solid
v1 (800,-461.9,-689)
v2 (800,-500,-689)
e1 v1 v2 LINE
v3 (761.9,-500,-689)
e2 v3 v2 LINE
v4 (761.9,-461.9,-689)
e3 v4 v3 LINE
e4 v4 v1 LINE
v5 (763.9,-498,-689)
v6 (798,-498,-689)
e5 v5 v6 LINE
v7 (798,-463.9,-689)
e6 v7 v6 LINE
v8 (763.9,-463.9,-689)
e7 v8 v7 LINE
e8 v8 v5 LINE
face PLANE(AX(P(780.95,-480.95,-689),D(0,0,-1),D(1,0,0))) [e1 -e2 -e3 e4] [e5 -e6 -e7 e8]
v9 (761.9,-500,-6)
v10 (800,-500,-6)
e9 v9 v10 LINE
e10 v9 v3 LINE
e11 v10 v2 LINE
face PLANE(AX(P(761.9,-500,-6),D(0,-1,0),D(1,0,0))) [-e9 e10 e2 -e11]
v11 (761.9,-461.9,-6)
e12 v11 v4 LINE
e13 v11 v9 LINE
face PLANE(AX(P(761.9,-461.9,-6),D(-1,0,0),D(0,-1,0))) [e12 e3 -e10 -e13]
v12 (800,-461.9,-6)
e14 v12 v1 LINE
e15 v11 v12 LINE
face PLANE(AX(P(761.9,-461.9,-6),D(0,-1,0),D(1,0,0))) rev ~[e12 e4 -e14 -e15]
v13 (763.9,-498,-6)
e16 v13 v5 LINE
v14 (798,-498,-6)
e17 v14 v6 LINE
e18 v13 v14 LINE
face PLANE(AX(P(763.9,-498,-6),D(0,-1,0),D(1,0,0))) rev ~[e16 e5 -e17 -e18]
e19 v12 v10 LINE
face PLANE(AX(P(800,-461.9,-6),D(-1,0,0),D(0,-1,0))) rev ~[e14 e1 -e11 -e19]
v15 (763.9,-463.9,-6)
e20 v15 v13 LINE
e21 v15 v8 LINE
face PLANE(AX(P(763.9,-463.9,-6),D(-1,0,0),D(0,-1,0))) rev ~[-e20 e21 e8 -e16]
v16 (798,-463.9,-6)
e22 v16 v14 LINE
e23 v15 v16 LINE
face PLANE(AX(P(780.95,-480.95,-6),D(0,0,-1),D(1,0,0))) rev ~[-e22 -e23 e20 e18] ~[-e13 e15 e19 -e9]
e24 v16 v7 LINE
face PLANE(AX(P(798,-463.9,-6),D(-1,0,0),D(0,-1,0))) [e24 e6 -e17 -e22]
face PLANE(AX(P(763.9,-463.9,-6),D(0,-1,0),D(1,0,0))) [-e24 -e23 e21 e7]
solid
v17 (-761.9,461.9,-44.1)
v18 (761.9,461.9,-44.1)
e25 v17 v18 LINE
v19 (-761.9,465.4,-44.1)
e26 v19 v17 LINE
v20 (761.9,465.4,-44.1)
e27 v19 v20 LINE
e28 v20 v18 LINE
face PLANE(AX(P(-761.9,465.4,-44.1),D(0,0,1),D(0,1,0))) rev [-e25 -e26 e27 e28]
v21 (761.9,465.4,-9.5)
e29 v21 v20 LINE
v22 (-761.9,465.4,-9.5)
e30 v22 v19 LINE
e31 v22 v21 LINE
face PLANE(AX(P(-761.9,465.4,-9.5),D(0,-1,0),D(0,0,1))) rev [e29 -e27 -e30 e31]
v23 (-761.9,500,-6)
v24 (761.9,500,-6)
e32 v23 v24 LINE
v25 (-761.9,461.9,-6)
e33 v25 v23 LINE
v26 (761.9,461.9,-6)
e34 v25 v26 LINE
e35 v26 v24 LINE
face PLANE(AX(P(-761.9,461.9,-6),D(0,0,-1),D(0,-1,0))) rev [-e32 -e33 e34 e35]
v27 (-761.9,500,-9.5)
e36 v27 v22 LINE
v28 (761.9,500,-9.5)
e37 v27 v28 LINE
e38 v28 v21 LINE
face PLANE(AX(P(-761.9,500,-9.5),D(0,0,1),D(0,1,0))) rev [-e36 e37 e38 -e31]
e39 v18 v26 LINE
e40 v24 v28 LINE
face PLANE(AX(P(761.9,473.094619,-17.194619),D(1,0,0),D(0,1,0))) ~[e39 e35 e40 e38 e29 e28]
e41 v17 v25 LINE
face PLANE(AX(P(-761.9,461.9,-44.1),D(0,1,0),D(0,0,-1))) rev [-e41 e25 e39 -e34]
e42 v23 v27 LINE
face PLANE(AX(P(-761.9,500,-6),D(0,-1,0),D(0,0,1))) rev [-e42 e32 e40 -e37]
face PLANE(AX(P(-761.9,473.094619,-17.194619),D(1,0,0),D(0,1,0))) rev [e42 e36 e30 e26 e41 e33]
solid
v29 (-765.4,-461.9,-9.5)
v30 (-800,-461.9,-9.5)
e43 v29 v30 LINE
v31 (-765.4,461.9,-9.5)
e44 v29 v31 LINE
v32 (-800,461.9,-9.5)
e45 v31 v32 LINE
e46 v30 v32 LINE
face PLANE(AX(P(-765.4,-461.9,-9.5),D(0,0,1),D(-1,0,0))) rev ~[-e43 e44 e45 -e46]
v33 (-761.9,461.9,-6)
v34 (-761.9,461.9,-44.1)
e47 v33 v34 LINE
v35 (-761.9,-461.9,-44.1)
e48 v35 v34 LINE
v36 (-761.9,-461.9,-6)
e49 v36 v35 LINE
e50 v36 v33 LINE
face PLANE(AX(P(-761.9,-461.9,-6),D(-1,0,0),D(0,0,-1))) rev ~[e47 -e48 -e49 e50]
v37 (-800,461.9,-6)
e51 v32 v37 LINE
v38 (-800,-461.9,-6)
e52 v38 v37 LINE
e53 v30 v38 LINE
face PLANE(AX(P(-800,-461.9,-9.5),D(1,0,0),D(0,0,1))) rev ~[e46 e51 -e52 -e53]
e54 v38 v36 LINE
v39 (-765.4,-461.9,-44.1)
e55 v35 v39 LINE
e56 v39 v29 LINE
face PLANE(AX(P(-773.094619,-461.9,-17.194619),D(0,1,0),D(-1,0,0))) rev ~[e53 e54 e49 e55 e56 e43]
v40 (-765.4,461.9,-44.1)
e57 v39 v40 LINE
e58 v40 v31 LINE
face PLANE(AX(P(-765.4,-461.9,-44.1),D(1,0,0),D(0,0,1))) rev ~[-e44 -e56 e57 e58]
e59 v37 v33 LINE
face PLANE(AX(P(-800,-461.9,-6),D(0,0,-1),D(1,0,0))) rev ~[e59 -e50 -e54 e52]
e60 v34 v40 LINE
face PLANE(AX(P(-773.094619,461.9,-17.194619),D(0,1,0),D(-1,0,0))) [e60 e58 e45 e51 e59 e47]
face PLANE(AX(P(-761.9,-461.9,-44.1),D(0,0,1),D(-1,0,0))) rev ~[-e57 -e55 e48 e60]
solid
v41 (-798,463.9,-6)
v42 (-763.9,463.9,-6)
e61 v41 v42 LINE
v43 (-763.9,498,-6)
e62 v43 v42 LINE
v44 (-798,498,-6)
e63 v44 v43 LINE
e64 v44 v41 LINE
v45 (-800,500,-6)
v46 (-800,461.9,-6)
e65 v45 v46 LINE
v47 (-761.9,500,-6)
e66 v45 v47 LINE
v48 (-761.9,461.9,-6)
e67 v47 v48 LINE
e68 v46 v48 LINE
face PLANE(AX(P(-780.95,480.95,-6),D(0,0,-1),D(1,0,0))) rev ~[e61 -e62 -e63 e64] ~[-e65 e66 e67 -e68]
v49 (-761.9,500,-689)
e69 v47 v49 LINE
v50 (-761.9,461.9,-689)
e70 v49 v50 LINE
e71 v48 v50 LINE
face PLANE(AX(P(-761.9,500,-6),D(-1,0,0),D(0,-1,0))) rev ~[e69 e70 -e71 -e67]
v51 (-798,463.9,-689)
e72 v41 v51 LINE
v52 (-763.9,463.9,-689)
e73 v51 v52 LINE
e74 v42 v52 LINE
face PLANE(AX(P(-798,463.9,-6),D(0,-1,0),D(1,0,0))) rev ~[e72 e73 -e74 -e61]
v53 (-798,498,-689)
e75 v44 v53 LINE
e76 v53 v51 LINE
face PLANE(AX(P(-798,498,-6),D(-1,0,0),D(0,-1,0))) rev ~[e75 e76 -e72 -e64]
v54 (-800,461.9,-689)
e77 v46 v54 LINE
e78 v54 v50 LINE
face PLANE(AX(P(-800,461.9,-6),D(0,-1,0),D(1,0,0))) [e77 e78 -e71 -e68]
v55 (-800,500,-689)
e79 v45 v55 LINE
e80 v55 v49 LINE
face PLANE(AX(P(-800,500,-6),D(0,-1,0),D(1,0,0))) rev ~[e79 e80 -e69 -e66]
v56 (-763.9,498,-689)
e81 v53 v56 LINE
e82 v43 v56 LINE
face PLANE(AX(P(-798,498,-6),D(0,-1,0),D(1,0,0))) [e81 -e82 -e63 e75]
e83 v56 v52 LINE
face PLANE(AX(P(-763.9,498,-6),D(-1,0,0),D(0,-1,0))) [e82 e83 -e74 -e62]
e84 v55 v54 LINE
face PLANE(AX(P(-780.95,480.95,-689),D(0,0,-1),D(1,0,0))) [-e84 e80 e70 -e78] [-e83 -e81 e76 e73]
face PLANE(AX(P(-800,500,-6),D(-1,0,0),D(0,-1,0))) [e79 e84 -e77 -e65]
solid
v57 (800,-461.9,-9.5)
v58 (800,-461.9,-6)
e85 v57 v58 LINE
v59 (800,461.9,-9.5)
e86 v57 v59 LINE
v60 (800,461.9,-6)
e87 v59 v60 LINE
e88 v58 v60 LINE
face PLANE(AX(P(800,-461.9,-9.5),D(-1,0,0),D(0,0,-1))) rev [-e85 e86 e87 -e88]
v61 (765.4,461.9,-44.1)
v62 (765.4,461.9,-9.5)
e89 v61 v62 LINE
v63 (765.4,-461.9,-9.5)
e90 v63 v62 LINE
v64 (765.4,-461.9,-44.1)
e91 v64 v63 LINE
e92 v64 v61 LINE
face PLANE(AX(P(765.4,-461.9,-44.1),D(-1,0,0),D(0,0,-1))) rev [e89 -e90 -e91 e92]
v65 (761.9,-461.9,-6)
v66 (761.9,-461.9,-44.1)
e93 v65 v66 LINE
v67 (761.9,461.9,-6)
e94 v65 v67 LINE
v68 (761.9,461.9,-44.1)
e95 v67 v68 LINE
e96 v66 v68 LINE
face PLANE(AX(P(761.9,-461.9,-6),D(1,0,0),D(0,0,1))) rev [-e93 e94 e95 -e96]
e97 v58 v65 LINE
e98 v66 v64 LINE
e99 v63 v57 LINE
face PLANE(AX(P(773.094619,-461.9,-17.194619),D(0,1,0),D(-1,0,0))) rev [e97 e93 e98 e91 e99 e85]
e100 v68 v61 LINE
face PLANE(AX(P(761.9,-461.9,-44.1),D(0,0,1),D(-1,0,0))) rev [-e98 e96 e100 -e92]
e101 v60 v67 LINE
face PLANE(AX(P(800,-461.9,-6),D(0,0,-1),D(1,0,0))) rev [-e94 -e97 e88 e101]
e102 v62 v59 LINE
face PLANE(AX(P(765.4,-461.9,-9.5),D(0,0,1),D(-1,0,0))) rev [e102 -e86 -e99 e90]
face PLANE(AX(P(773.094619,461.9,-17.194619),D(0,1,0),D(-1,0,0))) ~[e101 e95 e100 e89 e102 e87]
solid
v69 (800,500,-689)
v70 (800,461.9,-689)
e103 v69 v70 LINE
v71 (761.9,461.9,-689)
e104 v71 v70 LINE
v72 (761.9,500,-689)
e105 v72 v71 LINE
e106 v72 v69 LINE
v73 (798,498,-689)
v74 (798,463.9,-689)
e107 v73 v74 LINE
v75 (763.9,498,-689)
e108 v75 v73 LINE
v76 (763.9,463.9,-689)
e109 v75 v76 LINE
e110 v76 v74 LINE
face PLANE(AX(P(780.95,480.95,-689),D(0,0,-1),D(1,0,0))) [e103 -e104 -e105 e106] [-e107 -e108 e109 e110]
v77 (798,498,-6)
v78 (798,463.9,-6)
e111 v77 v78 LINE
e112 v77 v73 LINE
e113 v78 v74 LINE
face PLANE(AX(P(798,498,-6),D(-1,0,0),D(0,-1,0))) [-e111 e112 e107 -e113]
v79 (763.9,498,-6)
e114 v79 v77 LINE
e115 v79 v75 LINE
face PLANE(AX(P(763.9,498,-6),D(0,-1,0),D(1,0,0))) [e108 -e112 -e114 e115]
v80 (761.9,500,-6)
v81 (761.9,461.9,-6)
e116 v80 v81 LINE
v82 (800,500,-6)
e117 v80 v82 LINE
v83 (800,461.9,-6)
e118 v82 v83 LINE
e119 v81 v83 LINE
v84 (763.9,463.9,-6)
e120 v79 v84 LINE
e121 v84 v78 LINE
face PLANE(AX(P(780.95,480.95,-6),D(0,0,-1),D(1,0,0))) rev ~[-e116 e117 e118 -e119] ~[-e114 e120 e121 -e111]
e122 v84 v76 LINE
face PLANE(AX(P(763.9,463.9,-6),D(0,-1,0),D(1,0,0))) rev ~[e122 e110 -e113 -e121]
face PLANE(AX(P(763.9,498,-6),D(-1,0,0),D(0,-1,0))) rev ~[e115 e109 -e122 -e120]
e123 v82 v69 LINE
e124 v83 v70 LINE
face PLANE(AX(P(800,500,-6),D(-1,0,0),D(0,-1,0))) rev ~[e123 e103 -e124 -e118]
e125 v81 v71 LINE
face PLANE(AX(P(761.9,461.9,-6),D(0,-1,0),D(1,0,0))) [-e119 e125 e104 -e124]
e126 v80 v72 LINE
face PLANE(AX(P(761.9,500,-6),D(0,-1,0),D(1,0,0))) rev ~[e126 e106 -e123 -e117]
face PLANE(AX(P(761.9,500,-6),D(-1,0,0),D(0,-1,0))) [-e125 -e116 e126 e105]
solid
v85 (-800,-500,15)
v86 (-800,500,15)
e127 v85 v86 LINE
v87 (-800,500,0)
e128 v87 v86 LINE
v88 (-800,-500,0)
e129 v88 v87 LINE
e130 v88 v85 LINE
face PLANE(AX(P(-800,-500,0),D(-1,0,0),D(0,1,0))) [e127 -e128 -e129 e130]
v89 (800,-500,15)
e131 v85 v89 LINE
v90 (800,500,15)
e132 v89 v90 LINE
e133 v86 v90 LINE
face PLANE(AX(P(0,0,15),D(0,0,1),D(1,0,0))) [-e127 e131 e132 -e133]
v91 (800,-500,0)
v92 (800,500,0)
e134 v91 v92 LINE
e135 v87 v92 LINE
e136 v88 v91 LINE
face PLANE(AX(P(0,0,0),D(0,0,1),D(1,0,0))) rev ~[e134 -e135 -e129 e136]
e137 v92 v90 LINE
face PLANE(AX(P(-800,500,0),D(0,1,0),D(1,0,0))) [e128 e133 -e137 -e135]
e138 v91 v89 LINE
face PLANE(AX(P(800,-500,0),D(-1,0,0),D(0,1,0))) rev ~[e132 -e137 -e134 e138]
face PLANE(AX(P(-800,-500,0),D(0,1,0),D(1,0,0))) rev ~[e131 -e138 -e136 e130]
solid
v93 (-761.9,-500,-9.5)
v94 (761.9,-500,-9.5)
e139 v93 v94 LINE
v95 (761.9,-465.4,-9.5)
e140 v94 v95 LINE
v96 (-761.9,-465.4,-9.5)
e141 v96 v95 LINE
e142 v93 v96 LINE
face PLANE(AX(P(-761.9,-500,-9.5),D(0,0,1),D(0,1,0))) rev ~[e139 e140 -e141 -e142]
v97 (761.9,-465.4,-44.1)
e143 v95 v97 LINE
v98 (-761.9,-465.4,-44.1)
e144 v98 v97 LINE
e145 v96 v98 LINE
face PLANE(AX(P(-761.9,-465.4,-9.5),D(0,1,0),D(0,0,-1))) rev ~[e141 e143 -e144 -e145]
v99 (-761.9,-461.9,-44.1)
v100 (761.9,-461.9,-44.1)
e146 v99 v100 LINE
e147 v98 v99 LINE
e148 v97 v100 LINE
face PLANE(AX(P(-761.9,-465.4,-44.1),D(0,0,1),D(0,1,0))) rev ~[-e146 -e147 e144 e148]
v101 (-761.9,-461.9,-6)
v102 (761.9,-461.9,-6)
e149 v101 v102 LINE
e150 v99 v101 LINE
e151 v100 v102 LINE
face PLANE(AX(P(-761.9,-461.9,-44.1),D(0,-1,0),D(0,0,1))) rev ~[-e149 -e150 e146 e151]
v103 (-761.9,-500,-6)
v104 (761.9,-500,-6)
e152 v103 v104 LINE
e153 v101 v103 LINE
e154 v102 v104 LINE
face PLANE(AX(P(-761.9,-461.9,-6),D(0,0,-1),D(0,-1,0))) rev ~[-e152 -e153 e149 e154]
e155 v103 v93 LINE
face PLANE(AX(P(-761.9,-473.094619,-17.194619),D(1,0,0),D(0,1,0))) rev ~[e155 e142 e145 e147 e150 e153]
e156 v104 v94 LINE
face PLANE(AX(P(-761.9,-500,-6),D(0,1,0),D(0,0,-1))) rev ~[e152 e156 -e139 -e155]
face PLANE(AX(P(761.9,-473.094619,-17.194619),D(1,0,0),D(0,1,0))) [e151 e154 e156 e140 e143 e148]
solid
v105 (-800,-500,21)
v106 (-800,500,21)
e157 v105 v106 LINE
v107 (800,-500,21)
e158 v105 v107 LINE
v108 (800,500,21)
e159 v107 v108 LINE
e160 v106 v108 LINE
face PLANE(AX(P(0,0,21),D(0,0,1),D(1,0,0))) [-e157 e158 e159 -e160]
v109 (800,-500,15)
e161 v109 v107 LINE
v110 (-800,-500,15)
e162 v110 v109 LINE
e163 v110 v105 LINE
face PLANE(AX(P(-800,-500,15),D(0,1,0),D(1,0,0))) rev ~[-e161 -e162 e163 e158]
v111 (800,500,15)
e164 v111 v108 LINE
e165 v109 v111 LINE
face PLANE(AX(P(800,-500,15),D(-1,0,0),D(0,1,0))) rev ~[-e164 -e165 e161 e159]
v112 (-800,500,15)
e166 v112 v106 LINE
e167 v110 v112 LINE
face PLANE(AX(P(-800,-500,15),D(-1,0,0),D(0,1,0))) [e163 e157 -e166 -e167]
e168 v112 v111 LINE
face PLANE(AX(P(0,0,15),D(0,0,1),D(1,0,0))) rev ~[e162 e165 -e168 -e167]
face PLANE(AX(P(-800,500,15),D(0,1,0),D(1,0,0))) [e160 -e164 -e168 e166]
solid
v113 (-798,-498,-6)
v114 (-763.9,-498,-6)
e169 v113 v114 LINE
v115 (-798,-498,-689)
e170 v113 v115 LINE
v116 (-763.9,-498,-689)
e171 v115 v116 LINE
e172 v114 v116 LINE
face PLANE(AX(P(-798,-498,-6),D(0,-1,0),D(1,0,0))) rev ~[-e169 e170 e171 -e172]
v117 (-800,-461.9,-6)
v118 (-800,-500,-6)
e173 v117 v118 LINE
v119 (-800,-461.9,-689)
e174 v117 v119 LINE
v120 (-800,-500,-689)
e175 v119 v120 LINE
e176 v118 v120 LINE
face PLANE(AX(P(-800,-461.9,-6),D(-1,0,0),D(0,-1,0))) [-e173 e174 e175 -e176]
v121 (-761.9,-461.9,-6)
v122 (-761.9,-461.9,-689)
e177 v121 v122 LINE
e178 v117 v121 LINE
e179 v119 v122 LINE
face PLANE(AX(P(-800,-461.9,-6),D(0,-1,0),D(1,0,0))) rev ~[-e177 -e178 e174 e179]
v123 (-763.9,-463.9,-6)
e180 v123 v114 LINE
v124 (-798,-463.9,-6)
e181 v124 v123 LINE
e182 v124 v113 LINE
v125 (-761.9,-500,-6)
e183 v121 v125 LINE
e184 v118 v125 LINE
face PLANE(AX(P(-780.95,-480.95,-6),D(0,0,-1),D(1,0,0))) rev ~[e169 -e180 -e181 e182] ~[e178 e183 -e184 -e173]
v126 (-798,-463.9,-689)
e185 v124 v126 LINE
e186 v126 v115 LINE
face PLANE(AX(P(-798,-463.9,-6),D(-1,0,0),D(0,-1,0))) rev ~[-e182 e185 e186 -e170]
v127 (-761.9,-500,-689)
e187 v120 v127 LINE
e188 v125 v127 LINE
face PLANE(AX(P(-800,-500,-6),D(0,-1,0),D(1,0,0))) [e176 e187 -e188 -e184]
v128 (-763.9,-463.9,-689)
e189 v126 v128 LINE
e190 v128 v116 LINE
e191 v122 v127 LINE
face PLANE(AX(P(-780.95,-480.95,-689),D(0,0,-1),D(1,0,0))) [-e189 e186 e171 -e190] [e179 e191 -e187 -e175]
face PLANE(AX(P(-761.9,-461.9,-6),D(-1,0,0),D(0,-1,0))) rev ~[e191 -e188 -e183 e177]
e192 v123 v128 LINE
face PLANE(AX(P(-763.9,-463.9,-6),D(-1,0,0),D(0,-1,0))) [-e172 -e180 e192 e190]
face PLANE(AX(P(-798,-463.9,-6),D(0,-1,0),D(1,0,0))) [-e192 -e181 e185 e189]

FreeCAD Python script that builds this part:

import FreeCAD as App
import Part
import Sketcher
from FreeCAD import Vector


def add_polygon(sketch, points):
    """Adds a closed chain of lines whose ends are joined by coincident constraints."""
    first, n = sketch.GeometryCount, len(points)
    for a, b in zip(points, points[1:] + points[:1]):
        sketch.addGeometry(Part.LineSegment(App.Vector(*a, 0), App.Vector(*b, 0)), False)
    for i in range(n):
        sketch.addConstraint(Sketcher.Constraint("Coincident", first + i, 2, first + (i + 1) % n, 1))

doc = App.newDocument("Part")
body = doc.addObject("PartDesign::Body", "Body")

# Sketch on XY plane
sketch1 = body.newObject("Sketcher::SketchObject", "Sketch")
sketch1.AttachmentSupport = (doc.getObject("XY_Plane"), [""])
sketch1.MapMode = "FlatFace"
add_polygon(sketch1, [(-800, 500), (-800, -500), (800, -500), (800, 500)])  # lines 0-3
sketch1.addConstraint([
    Sketcher.Constraint("Vertical", 0),
    Sketcher.Constraint("Horizontal", 1),
    Sketcher.Constraint("Vertical", 2),
    Sketcher.Constraint("Horizontal", 3),
    Sketcher.Constraint("Symmetric", 0, 2, 2, 2, -1, 1),
    Sketcher.Constraint("DistanceX", 1, 1, 1, 2, 1600.0),
    Sketcher.Constraint("DistanceY", 0, 2, 0, 1, 1000.0),
])
pad1 = body.newObject("PartDesign::Pad", "Pad")
pad1.Profile = sketch1
pad1.Length = 15
body2 = doc.addObject("PartDesign::Body", "Body001")
body2.AllowCompound = True

# Sketch on XY plane
sketch2 = body2.newObject("Sketcher::SketchObject", "Sketch001")
sketch2.AttachmentSupport = (doc.getObject("XY_Plane001"), [""])
sketch2.MapMode = "FlatFace"
sketch2.AttachmentOffset = App.Placement(Vector(0, 0, -6), App.Rotation())
add_polygon(sketch2, [(-800, -500), (-800, -462), (-762, -462), (-762, -500)])  # lines 0-3
add_polygon(sketch2, [(-764, -464), (-798, -464), (-798, -498), (-764, -498)])  # lines 4-7
add_polygon(sketch2, [(762, -500), (762, -462), (800, -462), (800, -500)])  # lines 8-11
add_polygon(sketch2, [(798, -464), (764, -464), (764, -498), (798, -498)])  # lines 12-15
add_polygon(sketch2, [(-800, 462), (-800, 500), (-762, 500), (-762, 462)])  # lines 16-19
add_polygon(sketch2, [(-764, 498), (-798, 498), (-798, 464), (-764, 464)])  # lines 20-23
add_polygon(sketch2, [(762, 462), (762, 500), (800, 500), (800, 462)])  # lines 24-27
add_polygon(sketch2, [(798, 498), (764, 498), (764, 464), (798, 464)])  # lines 28-31
sketch2.addConstraint([
    Sketcher.Constraint("Vertical", 0),
    Sketcher.Constraint("Horizontal", 1),
    Sketcher.Constraint("Vertical", 2),
    Sketcher.Constraint("Horizontal", 3),
    Sketcher.Constraint("Horizontal", 4),
    Sketcher.Constraint("Vertical", 5),
    Sketcher.Constraint("Horizontal", 6),
    Sketcher.Constraint("Vertical", 7),
    Sketcher.Constraint("Vertical", 8),
    Sketcher.Constraint("Horizontal", 9),
    Sketcher.Constraint("Vertical", 10),
    Sketcher.Constraint("Horizontal", 11),
    Sketcher.Constraint("Horizontal", 12),
    Sketcher.Constraint("Vertical", 13),
    Sketcher.Constraint("Horizontal", 14),
    Sketcher.Constraint("Vertical", 15),
    Sketcher.Constraint("Vertical", 16),
    Sketcher.Constraint("Horizontal", 17),
    Sketcher.Constraint("Vertical", 18),
    Sketcher.Constraint("Horizontal", 19),
    Sketcher.Constraint("Horizontal", 20),
    Sketcher.Constraint("Vertical", 21),
    Sketcher.Constraint("Horizontal", 22),
    Sketcher.Constraint("Vertical", 23),
    Sketcher.Constraint("Vertical", 24),
    Sketcher.Constraint("Horizontal", 25),
    Sketcher.Constraint("Vertical", 26),
    Sketcher.Constraint("Horizontal", 27),
    Sketcher.Constraint("Horizontal", 28),
    Sketcher.Constraint("Vertical", 29),
    Sketcher.Constraint("Horizontal", 30),
    Sketcher.Constraint("Vertical", 31),
    Sketcher.Constraint("Symmetric", 10, 2, 16, 2, -1, 1),
    Sketcher.Constraint("Symmetric", 8, 2, 18, 2, -1, 1),
    Sketcher.Constraint("Symmetric", 14, 2, 20, 2, -1, 1),
    Sketcher.Constraint("Symmetric", 12, 2, 22, 2, -1, 1),
    Sketcher.Constraint("Symmetric", 2, 2, 24, 2, -1, 1),
    Sketcher.Constraint("Symmetric", 0, 2, 26, 2, -1, 1),
    Sketcher.Constraint("Symmetric", 6, 2, 28, 2, -1, 1),
    Sketcher.Constraint("Symmetric", 4, 2, 30, 2, -1, 1),
    Sketcher.Constraint("Symmetric", 1, 2, 8, 2, -2),
    Sketcher.Constraint("Symmetric", 3, 2, 10, 2, -2),
    Sketcher.Constraint("Symmetric", 7, 2, 12, 2, -2),
    Sketcher.Constraint("Symmetric", 5, 2, 14, 2, -2),
    Sketcher.Constraint("Equal", 27, 0),
    Sketcher.Constraint("Equal", 30, 5),
    Sketcher.Constraint("DistanceX", 1, 1, 1, 2, 38.1),
    Sketcher.Constraint("DistanceX", 4, 2, 4, 1, 34.1),
    Sketcher.Constraint("DistanceX", 0, 2, -1, 1, 800.0),
    Sketcher.Constraint("DistanceY", 2, 2, -1, 1, 500.0),
    Sketcher.Constraint("DistanceX", 4, 2, -1, 1, 798.0),
    Sketcher.Constraint("DistanceY", 5, 2, -1, 1, 498.0),
])
pad2 = body2.newObject("PartDesign::Pad", "Pad001")
pad2.Profile = sketch2
pad2.Length = 683
pad2.Reversed = True
body3 = doc.addObject("PartDesign::Body", "Body002")

# Sketch on YZ plane
sketch3 = body3.newObject("Sketcher::SketchObject", "Sketch002")
sketch3.AttachmentSupport = (doc.getObject("YZ_Plane002"), [""])
sketch3.MapMode = "FlatFace"
sketch3.AttachmentOffset = App.Placement(Vector(0, 0, -761.9), App.Rotation())
add_polygon(sketch3, [(-461.9, -6), (-500, -6), (-500, -9.5), (-465.4, -9.5), (-465.4, -44.1), (-461.9, -44.1)])  # lines 0-5
sketch3.addConstraint([
    Sketcher.Constraint("Horizontal", 0),
    Sketcher.Constraint("Vertical", 1),
    Sketcher.Constraint("Horizontal", 2),
    Sketcher.Constraint("Vertical", 3),
    Sketcher.Constraint("Horizontal", 4),
    Sketcher.Constraint("Vertical", 5),
    Sketcher.Constraint("Equal", 4, 1),
    Sketcher.Constraint("Equal", 2, 3),
    Sketcher.Constraint("DistanceX", 0, 2, 0, 1, 38.1),
    Sketcher.Constraint("DistanceX", 2, 1, 2, 2, 34.6),
    Sketcher.Constraint("DistanceX", 0, 2, -1, 1, 500.0),
    Sketcher.Constraint("DistanceY", 0, 2, -1, 1, 6.0),
])
pad3 = body3.newObject("PartDesign::Pad", "Pad002")
pad3.Profile = sketch3
pad3.Length = 1523.8
body4 = doc.addObject("PartDesign::Body", "Body003")
doc.recompute()

mirroring = doc.addObject("Part::Mirroring", "Mirroring")
mirroring.Source = body3
mirroring.Base = Vector(0, 0, 0)
mirroring.Normal = Vector(0, -1, 0)
body4.BaseFeature = mirroring
doc.recompute()
body5 = doc.addObject("PartDesign::Body", "Body004")

# Sketch on XZ plane
sketch4 = body5.newObject("Sketcher::SketchObject", "Sketch003")
sketch4.AttachmentSupport = (doc.getObject("XZ_Plane004"), [""])
sketch4.MapMode = "FlatFace"
sketch4.AttachmentOffset = App.Placement(Vector(0, 0, 461.9), App.Rotation())
add_polygon(sketch4, [(-800, -9.5), (-800, -6), (-761.9, -6), (-761.9, -44.1), (-765.4, -44.1), (-765.4, -9.5)])  # lines 0-5
sketch4.addConstraint([
    Sketcher.Constraint("Vertical", 0),
    Sketcher.Constraint("Horizontal", 1),
    Sketcher.Constraint("Vertical", 2),
    Sketcher.Constraint("Horizontal", 3),
    Sketcher.Constraint("Vertical", 4),
    Sketcher.Constraint("Horizontal", 5),
    Sketcher.Constraint("Equal", 3, 0),
    Sketcher.Constraint("Equal", 1, 2),
    Sketcher.Constraint("DistanceX", 1, 1, 1, 2, 38.1),
    Sketcher.Constraint("DistanceX", 3, 2, 3, 1, 3.5),
    Sketcher.Constraint("DistanceX", 0, 2, -1, 1, 800.0),
    Sketcher.Constraint("DistanceY", 0, 2, -1, 1, 6.0),
])
pad4 = body5.newObject("PartDesign::Pad", "Pad003")
pad4.Profile = sketch4
pad4.Length = 923.8
pad4.Reversed = True
body6 = doc.addObject("PartDesign::Body", "Body005")
doc.recompute()

mirroring2 = doc.addObject("Part::Mirroring", "Mirroring001")
mirroring2.Source = body5
mirroring2.Base = Vector(0, 0, 0)
mirroring2.Normal = Vector(1, 0, 0)
body6.BaseFeature = mirroring2
doc.recompute()
body7 = doc.addObject("PartDesign::Body", "Body006")

# Sketch on XY plane
sketch5 = body7.newObject("Sketcher::SketchObject", "Sketch004")
sketch5.AttachmentSupport = (doc.getObject("XY_Plane006"), [""])
sketch5.MapMode = "FlatFace"
sketch5.AttachmentOffset = App.Placement(Vector(0, 0, 15), App.Rotation())
add_polygon(sketch5, [(-800, 500), (-800, -500), (800, -500), (800, 500)])  # lines 0-3
sketch5.addConstraint([
    Sketcher.Constraint("Vertical", 0),
    Sketcher.Constraint("Horizontal", 1),
    Sketcher.Constraint("Vertical", 2),
    Sketcher.Constraint("Horizontal", 3),
    Sketcher.Constraint("Symmetric", 0, 2, 2, 2, -1, 1),
    Sketcher.Constraint("DistanceX", 1, 1, 1, 2, 1600.0),
    Sketcher.Constraint("DistanceY", 0, 2, 0, 1, 1000.0),
])
pad5 = body7.newObject("PartDesign::Pad", "Pad004")
pad5.Profile = sketch5
pad5.Length = 6
mirroring.Visibility = False
mirroring2.Visibility = False

doc.recompute()
